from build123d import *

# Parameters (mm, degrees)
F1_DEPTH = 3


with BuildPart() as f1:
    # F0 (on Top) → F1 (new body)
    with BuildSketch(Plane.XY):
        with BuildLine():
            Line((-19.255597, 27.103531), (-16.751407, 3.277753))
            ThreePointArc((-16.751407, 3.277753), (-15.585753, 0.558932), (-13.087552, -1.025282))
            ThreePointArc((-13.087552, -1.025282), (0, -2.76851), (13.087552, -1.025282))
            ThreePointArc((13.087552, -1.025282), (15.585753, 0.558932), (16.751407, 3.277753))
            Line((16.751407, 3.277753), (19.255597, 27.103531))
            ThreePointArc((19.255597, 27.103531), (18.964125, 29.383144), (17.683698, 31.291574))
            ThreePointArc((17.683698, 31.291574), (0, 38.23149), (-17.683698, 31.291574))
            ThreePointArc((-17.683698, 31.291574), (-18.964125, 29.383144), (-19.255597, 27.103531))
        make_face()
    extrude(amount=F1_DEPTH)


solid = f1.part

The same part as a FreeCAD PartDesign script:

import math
import FreeCAD as App
import Part
import Sketcher
Q = App.Units.Quantity

doc = App.newDocument("Part")
body = doc.addObject("PartDesign::Body", "Body")

# Sketch on XY plane
sketch1 = doc.addObject("Sketcher::SketchObject", "Sketch")
body.addObject(sketch1)
sketch1.AttachmentSupport = (doc.XY_Plane, [""])
sketch1.MapMode = "FlatFace"
sketch1.addGeometry(Part.LineSegment(App.Vector(-19.3, 27.1, 0), App.Vector(-16.8, 3.3, 0)), False)
sketch1.addGeometry(Part.ArcOfCircle(Part.Circle(App.Vector(-11.8, 3.8, 0), App.Vector(0, 0, 1), 5), math.radians(-174), math.radians(-105)), False)
sketch1.addGeometry(Part.ArcOfCircle(Part.Circle(App.Vector(0, 47.2, 0), App.Vector(0, 0, 1), 50), math.radians(-105), math.radians(-75)), False)
sketch1.addGeometry(Part.ArcOfCircle(Part.Circle(App.Vector(11.8, 3.8, 0), App.Vector(0, 0, 1), 5), math.radians(-75), math.radians(-6)), False)
sketch1.addGeometry(Part.LineSegment(App.Vector(16.8, 3.3, 0), App.Vector(19.3, 27.1, 0)), False)
sketch1.addGeometry(Part.ArcOfCircle(Part.Circle(App.Vector(14.3, 27.6, 0), App.Vector(0, 0, 1), 5), math.radians(-6), math.radians(47)), False)
sketch1.addGeometry(Part.ArcOfCircle(Part.Circle(App.Vector(0, 12.2, 0), App.Vector(0, 0, 1), 26), math.radians(47), math.radians(133)), False)
sketch1.addGeometry(Part.ArcOfCircle(Part.Circle(App.Vector(-14.3, 27.6, 0), App.Vector(0, 0, 1), 5), math.radians(133), math.radians(186)), False)
sketch1.addConstraint(Sketcher.Constraint("Tangent", 0, 2, 1, 1))
sketch1.addConstraint(Sketcher.Constraint("Tangent", 1, 2, 2, 1))
sketch1.addConstraint(Sketcher.Constraint("Tangent", 2, 2, 3, 1))
sketch1.addConstraint(Sketcher.Constraint("Tangent", 3, 2, 4, 1))
sketch1.addConstraint(Sketcher.Constraint("Tangent", 4, 2, 5, 1))
sketch1.addConstraint(Sketcher.Constraint("Tangent", 5, 2, 6, 1))
sketch1.addConstraint(Sketcher.Constraint("Tangent", 6, 2, 7, 1))
sketch1.addConstraint(Sketcher.Constraint("Tangent", 7, 2, 0, 1))
sketch1.addConstraint(Sketcher.Constraint("Equal", 1, 3))
sketch1.addConstraint(Sketcher.Constraint("Equal", 3, 5))
sketch1.addConstraint(Sketcher.Constraint("Equal", 5, 7))
sketch1.addConstraint(Sketcher.Constraint("Symmetric", 1, 3, 3, 3, -2))
sketch1.addConstraint(Sketcher.Constraint("Symmetric", 5, 3, 7, 3, -2))
sketch1.addConstraint(Sketcher.Constraint("Radius", 6, 25.999998))
sketch1.addConstraint(Sketcher.Constraint("Angle", 0, Q("-84 deg")))
sketch1.addConstraint(Sketcher.Constraint("Radius", 1, 5.000003))
sketch1.addConstraint(Sketcher.Constraint("Radius", 2, 50.000018))
sketch1.addConstraint(Sketcher.Constraint("DistanceX", -1, 1, 5, 2, 17.683698))
sketch1.addConstraint(Sketcher.Constraint("DistanceX", 3, 3, 4, 2, 7.476802))
sketch1.addConstraint(Sketcher.Constraint("DistanceY", -1, 1, 5, 3, 27.626172))
pad1 = doc.addObject("PartDesign::Pad", "Pad")
body.addObject(pad1)
pad1.Profile = sketch1
pad1.Length = 3

doc.recompute()
